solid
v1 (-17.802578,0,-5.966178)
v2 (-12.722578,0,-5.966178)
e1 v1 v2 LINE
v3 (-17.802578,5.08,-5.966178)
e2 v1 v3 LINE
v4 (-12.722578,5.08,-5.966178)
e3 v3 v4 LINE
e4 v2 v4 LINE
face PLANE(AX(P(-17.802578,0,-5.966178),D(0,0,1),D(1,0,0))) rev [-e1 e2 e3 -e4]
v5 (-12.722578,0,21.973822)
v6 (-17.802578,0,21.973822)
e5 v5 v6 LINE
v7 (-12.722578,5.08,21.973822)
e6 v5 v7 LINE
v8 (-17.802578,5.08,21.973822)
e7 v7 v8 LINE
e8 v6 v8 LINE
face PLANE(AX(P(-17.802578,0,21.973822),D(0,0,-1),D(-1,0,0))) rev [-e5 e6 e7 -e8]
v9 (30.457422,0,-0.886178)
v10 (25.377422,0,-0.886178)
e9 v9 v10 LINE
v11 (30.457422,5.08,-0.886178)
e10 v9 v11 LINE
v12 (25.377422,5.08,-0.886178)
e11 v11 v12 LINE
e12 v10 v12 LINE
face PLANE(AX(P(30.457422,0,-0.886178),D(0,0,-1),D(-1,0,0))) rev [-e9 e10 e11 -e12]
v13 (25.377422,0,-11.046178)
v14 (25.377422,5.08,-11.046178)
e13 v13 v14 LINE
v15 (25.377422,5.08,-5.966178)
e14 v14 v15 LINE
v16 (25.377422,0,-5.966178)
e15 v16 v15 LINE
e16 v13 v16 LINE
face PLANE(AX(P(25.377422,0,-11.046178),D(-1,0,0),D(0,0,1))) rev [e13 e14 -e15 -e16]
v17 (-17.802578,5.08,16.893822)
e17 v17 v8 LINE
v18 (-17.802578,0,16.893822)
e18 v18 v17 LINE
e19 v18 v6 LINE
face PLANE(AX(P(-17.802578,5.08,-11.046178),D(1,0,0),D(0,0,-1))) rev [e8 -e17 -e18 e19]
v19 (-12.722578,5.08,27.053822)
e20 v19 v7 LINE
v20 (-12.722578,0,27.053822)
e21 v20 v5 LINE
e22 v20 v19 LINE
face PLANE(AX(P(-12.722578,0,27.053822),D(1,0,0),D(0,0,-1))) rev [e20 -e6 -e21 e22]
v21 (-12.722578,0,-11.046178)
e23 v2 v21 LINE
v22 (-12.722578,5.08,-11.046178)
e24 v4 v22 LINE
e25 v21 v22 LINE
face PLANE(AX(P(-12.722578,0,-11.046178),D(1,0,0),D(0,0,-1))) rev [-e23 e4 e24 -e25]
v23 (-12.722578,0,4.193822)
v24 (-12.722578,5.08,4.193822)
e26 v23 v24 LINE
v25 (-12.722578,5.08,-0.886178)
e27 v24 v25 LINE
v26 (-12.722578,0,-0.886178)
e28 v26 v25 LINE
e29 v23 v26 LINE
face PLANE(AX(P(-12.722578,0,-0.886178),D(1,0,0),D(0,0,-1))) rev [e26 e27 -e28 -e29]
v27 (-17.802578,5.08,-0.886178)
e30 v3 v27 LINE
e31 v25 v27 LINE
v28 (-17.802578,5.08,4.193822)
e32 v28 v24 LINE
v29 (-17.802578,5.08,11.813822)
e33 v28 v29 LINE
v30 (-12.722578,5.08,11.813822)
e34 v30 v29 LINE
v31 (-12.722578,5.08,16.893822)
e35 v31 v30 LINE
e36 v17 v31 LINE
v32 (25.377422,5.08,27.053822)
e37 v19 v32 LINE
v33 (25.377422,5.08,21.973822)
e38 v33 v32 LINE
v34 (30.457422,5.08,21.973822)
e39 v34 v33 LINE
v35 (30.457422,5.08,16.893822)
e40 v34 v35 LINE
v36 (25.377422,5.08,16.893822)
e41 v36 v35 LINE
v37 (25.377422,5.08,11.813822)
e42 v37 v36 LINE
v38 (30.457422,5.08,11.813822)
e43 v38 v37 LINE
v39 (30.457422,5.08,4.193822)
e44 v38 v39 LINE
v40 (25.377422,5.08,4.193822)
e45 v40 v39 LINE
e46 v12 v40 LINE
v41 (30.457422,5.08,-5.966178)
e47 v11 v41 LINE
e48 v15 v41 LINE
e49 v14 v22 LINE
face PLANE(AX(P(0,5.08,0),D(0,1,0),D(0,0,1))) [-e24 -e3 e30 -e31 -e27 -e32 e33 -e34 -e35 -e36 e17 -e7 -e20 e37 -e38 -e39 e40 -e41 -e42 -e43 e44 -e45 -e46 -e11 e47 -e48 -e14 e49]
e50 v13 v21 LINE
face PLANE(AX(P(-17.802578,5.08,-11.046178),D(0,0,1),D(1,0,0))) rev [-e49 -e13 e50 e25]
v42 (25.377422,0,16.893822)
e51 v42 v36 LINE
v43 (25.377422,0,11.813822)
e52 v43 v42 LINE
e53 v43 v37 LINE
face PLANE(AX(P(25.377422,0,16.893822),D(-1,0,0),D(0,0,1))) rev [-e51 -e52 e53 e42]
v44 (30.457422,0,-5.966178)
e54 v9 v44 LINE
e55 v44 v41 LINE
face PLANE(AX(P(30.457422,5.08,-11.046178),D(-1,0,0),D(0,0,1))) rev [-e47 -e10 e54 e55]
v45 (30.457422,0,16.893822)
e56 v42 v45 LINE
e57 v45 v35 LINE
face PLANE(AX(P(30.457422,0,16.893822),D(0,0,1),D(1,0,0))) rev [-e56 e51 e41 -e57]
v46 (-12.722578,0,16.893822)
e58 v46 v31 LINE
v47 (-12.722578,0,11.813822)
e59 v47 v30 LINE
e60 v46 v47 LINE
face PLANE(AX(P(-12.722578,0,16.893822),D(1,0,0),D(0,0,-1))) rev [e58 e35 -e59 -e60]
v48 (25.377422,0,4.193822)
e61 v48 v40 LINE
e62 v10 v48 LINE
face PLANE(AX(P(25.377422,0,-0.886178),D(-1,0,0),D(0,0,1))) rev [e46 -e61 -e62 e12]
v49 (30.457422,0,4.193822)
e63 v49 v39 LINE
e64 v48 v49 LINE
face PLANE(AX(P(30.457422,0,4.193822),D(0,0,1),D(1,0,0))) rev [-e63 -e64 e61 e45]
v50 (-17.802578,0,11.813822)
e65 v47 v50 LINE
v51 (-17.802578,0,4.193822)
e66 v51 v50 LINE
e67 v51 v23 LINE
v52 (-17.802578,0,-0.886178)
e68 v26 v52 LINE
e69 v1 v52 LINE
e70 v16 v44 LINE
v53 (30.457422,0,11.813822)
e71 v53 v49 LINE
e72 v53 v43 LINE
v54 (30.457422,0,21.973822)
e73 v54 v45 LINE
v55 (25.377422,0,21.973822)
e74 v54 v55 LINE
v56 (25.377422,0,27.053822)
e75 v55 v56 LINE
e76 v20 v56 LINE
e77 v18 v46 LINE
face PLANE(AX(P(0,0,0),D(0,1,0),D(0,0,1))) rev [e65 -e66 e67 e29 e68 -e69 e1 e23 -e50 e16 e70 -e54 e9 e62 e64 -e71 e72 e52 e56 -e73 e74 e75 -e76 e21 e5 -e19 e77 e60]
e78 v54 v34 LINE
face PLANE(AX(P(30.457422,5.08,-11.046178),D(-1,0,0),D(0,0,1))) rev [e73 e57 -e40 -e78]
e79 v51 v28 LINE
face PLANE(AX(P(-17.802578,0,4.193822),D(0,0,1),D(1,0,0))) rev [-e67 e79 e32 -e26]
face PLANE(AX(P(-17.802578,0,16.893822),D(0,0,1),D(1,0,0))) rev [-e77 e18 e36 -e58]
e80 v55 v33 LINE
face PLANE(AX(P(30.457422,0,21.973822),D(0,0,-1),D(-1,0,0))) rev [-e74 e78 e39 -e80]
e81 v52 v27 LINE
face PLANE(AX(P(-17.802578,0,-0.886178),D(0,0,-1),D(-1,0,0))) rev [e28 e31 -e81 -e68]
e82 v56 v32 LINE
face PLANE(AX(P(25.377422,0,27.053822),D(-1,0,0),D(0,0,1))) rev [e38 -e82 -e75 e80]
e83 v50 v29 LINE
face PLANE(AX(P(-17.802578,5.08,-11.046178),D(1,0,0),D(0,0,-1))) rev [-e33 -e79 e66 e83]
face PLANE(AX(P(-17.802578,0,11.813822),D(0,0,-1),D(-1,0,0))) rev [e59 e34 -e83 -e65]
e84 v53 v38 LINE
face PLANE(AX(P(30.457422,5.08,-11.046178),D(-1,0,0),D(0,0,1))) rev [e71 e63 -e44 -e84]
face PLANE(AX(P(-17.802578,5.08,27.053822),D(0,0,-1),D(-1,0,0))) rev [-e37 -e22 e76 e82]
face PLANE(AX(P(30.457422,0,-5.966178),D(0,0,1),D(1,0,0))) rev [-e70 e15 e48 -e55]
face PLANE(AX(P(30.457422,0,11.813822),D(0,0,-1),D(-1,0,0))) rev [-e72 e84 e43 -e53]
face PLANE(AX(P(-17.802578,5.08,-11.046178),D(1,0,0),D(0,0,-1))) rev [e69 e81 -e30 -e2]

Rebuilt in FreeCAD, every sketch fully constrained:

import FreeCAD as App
import Part
import Sketcher
Q = App.Units.Quantity

doc = App.newDocument("Part")
body = doc.addObject("PartDesign::Body", "Body")

sketch1 = body.newObject("Sketcher::SketchObject", "Sketch")
sketch1.AttachmentSupport = (doc.getObject("XZ_Plane"), [""])
sketch1.MapMode = "FlatFace"
sketch1.addGeometry([
    Part.LineSegment(App.Vector(-18, -11, 0), App.Vector(-18, 27, 0)),
    Part.LineSegment(App.Vector(-18, 27, 0), App.Vector(30, 27, 0)),
    Part.LineSegment(App.Vector(30, 27, 0), App.Vector(30, -11, 0)),
    Part.LineSegment(App.Vector(30, -11, 0), App.Vector(-18, -11, 0)),
], False)
sketch1.addConstraint([
    Sketcher.Constraint("Coincident", 0, 2, 1, 1),
    Sketcher.Constraint("Coincident", 1, 2, 2, 1),
    Sketcher.Constraint("Coincident", 2, 2, 3, 1),
    Sketcher.Constraint("Coincident", 3, 2, 0, 1),
    Sketcher.Constraint("Vertical", 0),
    Sketcher.Constraint("Horizontal", 1),
    Sketcher.Constraint("Vertical", 2),
    Sketcher.Constraint("Horizontal", 3),
    Sketcher.Constraint("DistanceX", 1, 1, 1, 2, Q("1.9 in")),
    Sketcher.Constraint("DistanceY", 0, 1, 0, 2, Q("1.5 in")),
    Sketcher.Constraint("DistanceX", 0, 2, -1, 1, 17.802578),
    Sketcher.Constraint("DistanceY", -1, 1, 0, 2, 27.053822),
])
pad1 = body.newObject("PartDesign::Pad", "Pad")
pad1.Profile = sketch1
pad1.Length = Q("0.2 in")
pad1.Reversed = True

sketch2 = body.newObject("Sketcher::SketchObject", "Sketch001")
sketch2.AttachmentSupport = (doc.getObject("XZ_Plane"), [""])
sketch2.MapMode = "FlatFace"
sketch2.AttachmentOffset = App.Placement(App.Vector(0, 0, -0.2 * 25.4), App.Rotation())
sketch2.addGeometry([
    Part.LineSegment(App.Vector(25, 22, 0), App.Vector(25, 27, 0)),
    Part.LineSegment(App.Vector(25, 27, 0), App.Vector(30, 27, 0)),
    Part.LineSegment(App.Vector(30, 27, 0), App.Vector(30, 22, 0)),
    Part.LineSegment(App.Vector(30, 22, 0), App.Vector(25, 22, 0)),
    Part.LineSegment(App.Vector(25, 12, 0), App.Vector(25, 17, 0)),
    Part.LineSegment(App.Vector(25, 17, 0), App.Vector(30, 17, 0)),
    Part.LineSegment(App.Vector(30, 17, 0), App.Vector(30, 12, 0)),
    Part.LineSegment(App.Vector(30, 12, 0), App.Vector(25, 12, 0)),
    Part.LineSegment(App.Vector(-18, -11, 0), App.Vector(-18, -6, 0)),
    Part.LineSegment(App.Vector(-18, -6, 0), App.Vector(-13, -6, 0)),
    Part.LineSegment(App.Vector(-13, -6, 0), App.Vector(-13, -11, 0)),
    Part.LineSegment(App.Vector(-13, -11, 0), App.Vector(-18, -11, 0)),
    Part.LineSegment(App.Vector(-18, -1, 0), App.Vector(-18, 4, 0)),
    Part.LineSegment(App.Vector(-18, 4, 0), App.Vector(-13, 4, 0)),
    Part.LineSegment(App.Vector(-13, 4, 0), App.Vector(-13, -1, 0)),
    Part.LineSegment(App.Vector(-13, -1, 0), App.Vector(-18, -1, 0)),
    Part.LineSegment(App.Vector(-18, 22, 0), App.Vector(-18, 27, 0)),
    Part.LineSegment(App.Vector(-18, 27, 0), App.Vector(-13, 27, 0)),
    Part.LineSegment(App.Vector(-13, 27, 0), App.Vector(-13, 22, 0)),
    Part.LineSegment(App.Vector(-13, 22, 0), App.Vector(-18, 22, 0)),
    Part.LineSegment(App.Vector(-18, 12, 0), App.Vector(-18, 17, 0)),
    Part.LineSegment(App.Vector(-18, 17, 0), App.Vector(-13, 17, 0)),
    Part.LineSegment(App.Vector(-13, 17, 0), App.Vector(-13, 12, 0)),
    Part.LineSegment(App.Vector(-13, 12, 0), App.Vector(-18, 12, 0)),
    Part.LineSegment(App.Vector(25, -1, 0), App.Vector(25, 4, 0)),
    Part.LineSegment(App.Vector(25, 4, 0), App.Vector(30, 4, 0)),
    Part.LineSegment(App.Vector(30, 4, 0), App.Vector(30, -1, 0)),
    Part.LineSegment(App.Vector(30, -1, 0), App.Vector(25, -1, 0)),
    Part.LineSegment(App.Vector(25, -11, 0), App.Vector(25, -6, 0)),
    Part.LineSegment(App.Vector(25, -6, 0), App.Vector(30, -6, 0)),
    Part.LineSegment(App.Vector(30, -6, 0), App.Vector(30, -11, 0)),
    Part.LineSegment(App.Vector(30, -11, 0), App.Vector(25, -11, 0)),
], False)
sketch2.addConstraint([
    Sketcher.Constraint("Coincident", 0, 2, 1, 1),
    Sketcher.Constraint("Coincident", 1, 2, 2, 1),
    Sketcher.Constraint("Coincident", 2, 2, 3, 1),
    Sketcher.Constraint("Coincident", 3, 2, 0, 1),
    Sketcher.Constraint("Coincident", 4, 2, 5, 1),
    Sketcher.Constraint("Coincident", 5, 2, 6, 1),
    Sketcher.Constraint("Coincident", 6, 2, 7, 1),
    Sketcher.Constraint("Coincident", 7, 2, 4, 1),
    Sketcher.Constraint("Coincident", 8, 2, 9, 1),
    Sketcher.Constraint("Coincident", 9, 2, 10, 1),
    Sketcher.Constraint("Coincident", 10, 2, 11, 1),
    Sketcher.Constraint("Coincident", 11, 2, 8, 1),
    Sketcher.Constraint("Coincident", 12, 2, 13, 1),
    Sketcher.Constraint("Coincident", 13, 2, 14, 1),
    Sketcher.Constraint("Coincident", 14, 2, 15, 1),
    Sketcher.Constraint("Coincident", 15, 2, 12, 1),
    Sketcher.Constraint("Coincident", 16, 2, 17, 1),
    Sketcher.Constraint("Coincident", 17, 2, 18, 1),
    Sketcher.Constraint("Coincident", 18, 2, 19, 1),
    Sketcher.Constraint("Coincident", 19, 2, 16, 1),
    Sketcher.Constraint("Coincident", 20, 2, 21, 1),
    Sketcher.Constraint("Coincident", 21, 2, 22, 1),
    Sketcher.Constraint("Coincident", 22, 2, 23, 1),
    Sketcher.Constraint("Coincident", 23, 2, 20, 1),
    Sketcher.Constraint("Coincident", 24, 2, 25, 1),
    Sketcher.Constraint("Coincident", 25, 2, 26, 1),
    Sketcher.Constraint("Coincident", 26, 2, 27, 1),
    Sketcher.Constraint("Coincident", 27, 2, 24, 1),
    Sketcher.Constraint("Coincident", 28, 2, 29, 1),
    Sketcher.Constraint("Coincident", 29, 2, 30, 1),
    Sketcher.Constraint("Coincident", 30, 2, 31, 1),
    Sketcher.Constraint("Coincident", 31, 2, 28, 1),
    Sketcher.Constraint("Vertical", 0),
    Sketcher.Constraint("Horizontal", 1),
    Sketcher.Constraint("Vertical", 2),
    Sketcher.Constraint("Horizontal", 3),
    Sketcher.Constraint("Vertical", 4),
    Sketcher.Constraint("Horizontal", 5),
    Sketcher.Constraint("Vertical", 6),
    Sketcher.Constraint("Horizontal", 7),
    Sketcher.Constraint("Vertical", 8),
    Sketcher.Constraint("Horizontal", 9),
    Sketcher.Constraint("Vertical", 10),
    Sketcher.Constraint("Horizontal", 11),
    Sketcher.Constraint("Vertical", 12),
    Sketcher.Constraint("Horizontal", 13),
    Sketcher.Constraint("Vertical", 14),
    Sketcher.Constraint("Horizontal", 15),
    Sketcher.Constraint("Vertical", 16),
    Sketcher.Constraint("Horizontal", 17),
    Sketcher.Constraint("Vertical", 18),
    Sketcher.Constraint("Horizontal", 19),
    Sketcher.Constraint("Vertical", 20),
    Sketcher.Constraint("Horizontal", 21),
    Sketcher.Constraint("Vertical", 22),
    Sketcher.Constraint("Horizontal", 23),
    Sketcher.Constraint("Vertical", 24),
    Sketcher.Constraint("Horizontal", 25),
    Sketcher.Constraint("Vertical", 26),
    Sketcher.Constraint("Horizontal", 27),
    Sketcher.Constraint("Vertical", 28),
    Sketcher.Constraint("Horizontal", 29),
    Sketcher.Constraint("Vertical", 30),
    Sketcher.Constraint("Horizontal", 31),
    Sketcher.Constraint("Horizontal", 1, 2, 16, 2),
    Sketcher.Constraint("Horizontal", 3, 2, 18, 2),
    Sketcher.Constraint("Horizontal", 5, 2, 20, 2),
    Sketcher.Constraint("Horizontal", 7, 2, 22, 2),
    Sketcher.Constraint("Horizontal", 13, 2, 24, 2),
    Sketcher.Constraint("Horizontal", 15, 2, 26, 2),
    Sketcher.Constraint("Horizontal", 9, 2, 28, 2),
    Sketcher.Constraint("Horizontal", 11, 2, 30, 2),
    Sketcher.Constraint("Vertical", 3, 2, 4, 2),
    Sketcher.Constraint("Vertical", 2, 2, 5, 2),
    Sketcher.Constraint("Vertical", 11, 2, 12, 2),
    Sketcher.Constraint("Vertical", 10, 2, 13, 2),
    Sketcher.Constraint("Vertical", 15, 2, 16, 2),
    Sketcher.Constraint("Vertical", 14, 2, 17, 2),
    Sketcher.Constraint("Vertical", 19, 2, 20, 2),
    Sketcher.Constraint("Vertical", 18, 2, 21, 2),
    Sketcher.Constraint("Vertical", 7, 2, 24, 2),
    Sketcher.Constraint("Vertical", 6, 2, 25, 2),
    Sketcher.Constraint("Vertical", 27, 2, 28, 2),
    Sketcher.Constraint("Vertical", 26, 2, 29, 2),
    Sketcher.Constraint("Equal", 7, 9),
    Sketcher.Constraint("Equal", 31, 0),
    Sketcher.Constraint("Equal", 2, 4),
    Sketcher.Constraint("Equal", 6, 8),
    Sketcher.Constraint("Equal", 10, 12),
    Sketcher.Constraint("DistanceX", 1, 1, 1, 2, Q("0.2 in")),
    Sketcher.Constraint("DistanceY", 4, 2, 3, 2, Q("0.2 in")),
    Sketcher.Constraint("DistanceX", 8, 2, 7, 2, Q("1.7 in")),
    Sketcher.Constraint("DistanceY", 8, 2, 7, 2, Q("0.7 in")),
    Sketcher.Constraint("DistanceY", 8, 2, 12, 2, Q("0.4 in")),
    Sketcher.Constraint("DistanceX", -1, 1, 0, 2, 25.377422),
    Sketcher.Constraint("DistanceY", -1, 1, 0, 2, 27.053822),
])
pocket1 = body.newObject("PartDesign::Pocket", "Pocket")
pocket1.Profile = sketch2
pocket1.Length = Q("0.2 in")
pocket1.Reversed = True

doc.recompute()
